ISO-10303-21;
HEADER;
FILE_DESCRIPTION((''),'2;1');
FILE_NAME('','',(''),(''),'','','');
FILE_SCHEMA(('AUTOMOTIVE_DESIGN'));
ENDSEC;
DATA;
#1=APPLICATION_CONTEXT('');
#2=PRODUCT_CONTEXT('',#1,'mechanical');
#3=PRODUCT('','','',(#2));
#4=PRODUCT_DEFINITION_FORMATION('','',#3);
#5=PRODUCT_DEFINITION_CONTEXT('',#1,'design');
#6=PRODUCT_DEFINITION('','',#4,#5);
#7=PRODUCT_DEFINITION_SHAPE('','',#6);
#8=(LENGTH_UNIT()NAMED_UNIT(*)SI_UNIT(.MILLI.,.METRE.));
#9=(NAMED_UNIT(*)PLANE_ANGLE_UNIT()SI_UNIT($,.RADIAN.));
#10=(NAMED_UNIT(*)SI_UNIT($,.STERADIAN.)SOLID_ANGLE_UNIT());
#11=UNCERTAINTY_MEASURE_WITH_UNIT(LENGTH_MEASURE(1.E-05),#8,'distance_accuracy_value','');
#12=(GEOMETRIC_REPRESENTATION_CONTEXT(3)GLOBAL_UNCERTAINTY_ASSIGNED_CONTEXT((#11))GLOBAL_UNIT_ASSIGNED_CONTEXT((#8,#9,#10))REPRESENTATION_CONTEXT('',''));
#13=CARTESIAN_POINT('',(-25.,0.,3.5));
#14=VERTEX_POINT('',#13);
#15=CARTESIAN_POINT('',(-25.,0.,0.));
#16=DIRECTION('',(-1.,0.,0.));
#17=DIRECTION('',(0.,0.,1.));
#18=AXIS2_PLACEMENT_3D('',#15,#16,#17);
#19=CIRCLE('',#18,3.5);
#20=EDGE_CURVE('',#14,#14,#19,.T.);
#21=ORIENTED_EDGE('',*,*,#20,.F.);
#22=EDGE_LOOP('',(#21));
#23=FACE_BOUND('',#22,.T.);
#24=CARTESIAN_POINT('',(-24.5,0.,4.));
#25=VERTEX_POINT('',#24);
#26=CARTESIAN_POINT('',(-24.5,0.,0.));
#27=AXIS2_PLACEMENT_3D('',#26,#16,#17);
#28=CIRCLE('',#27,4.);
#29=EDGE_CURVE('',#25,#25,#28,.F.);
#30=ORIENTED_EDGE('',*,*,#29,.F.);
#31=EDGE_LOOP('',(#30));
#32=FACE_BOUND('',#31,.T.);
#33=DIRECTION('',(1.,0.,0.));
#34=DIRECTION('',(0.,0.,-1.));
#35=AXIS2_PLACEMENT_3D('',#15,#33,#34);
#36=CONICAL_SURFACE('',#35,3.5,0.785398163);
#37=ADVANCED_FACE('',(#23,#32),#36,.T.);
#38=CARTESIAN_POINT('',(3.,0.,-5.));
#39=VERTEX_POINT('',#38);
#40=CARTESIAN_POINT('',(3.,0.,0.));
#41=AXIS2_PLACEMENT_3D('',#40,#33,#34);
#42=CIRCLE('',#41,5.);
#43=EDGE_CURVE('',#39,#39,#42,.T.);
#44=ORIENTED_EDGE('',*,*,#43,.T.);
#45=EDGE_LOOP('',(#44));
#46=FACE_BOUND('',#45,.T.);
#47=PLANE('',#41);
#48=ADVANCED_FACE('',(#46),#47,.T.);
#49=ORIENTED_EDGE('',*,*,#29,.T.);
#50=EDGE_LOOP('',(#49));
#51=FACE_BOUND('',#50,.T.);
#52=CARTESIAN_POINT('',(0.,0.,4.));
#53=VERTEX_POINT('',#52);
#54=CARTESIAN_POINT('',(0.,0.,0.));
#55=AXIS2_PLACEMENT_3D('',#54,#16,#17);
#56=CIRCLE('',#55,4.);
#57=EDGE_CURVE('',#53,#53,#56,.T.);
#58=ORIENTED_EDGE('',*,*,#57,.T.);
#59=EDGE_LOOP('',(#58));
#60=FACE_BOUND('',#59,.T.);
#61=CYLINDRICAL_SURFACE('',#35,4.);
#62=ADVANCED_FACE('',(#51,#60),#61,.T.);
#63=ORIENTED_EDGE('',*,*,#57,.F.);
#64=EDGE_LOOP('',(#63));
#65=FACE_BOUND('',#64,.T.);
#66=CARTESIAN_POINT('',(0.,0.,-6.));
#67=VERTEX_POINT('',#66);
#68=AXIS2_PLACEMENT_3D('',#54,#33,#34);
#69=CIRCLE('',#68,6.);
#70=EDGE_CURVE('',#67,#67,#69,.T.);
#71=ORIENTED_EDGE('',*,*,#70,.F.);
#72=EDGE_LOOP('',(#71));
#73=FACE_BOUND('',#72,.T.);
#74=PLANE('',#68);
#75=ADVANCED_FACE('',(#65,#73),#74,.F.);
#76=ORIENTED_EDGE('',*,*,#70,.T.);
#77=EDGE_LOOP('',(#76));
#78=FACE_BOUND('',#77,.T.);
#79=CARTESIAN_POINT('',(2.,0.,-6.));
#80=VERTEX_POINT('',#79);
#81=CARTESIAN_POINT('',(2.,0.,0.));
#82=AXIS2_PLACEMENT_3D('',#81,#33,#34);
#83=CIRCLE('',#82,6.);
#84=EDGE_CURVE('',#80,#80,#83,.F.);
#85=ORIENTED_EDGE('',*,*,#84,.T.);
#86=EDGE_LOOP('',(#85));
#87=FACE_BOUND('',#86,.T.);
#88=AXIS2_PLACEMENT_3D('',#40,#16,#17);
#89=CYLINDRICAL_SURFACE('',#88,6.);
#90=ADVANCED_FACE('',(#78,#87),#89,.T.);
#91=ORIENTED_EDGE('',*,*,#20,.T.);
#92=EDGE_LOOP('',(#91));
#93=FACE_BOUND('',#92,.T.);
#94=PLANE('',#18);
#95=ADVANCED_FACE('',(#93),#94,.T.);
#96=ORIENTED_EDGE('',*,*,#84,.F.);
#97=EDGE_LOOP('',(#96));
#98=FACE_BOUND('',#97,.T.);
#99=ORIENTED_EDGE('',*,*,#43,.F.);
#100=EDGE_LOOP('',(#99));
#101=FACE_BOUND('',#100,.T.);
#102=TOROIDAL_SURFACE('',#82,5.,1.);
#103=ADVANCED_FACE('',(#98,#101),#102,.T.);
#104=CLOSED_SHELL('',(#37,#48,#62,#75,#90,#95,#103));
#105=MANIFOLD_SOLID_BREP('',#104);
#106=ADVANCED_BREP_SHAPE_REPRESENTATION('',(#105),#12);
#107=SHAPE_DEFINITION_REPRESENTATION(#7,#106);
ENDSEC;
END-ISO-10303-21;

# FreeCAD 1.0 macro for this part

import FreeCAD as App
import Part
import Sketcher
from FreeCAD import Vector
Q = App.Units.Quantity


def edges_at(feature, points):
    """Names of the edges that pass closest to the given points."""
    edges = feature.Shape.Edges
    near = lambda p: min(range(len(edges)), key=lambda i: edges[i].distToShape(Part.Vertex(*p))[0])
    return sorted({f"Edge{near(p) + 1}" for p in points})

doc = App.newDocument("Part")
body = doc.addObject("PartDesign::Body", "Body")

# Sketch on YZ plane
sketch1 = doc.addObject("Sketcher::SketchObject", "Sketch")
body.addObject(sketch1)
sketch1.AttachmentSupport = (doc.YZ_Plane, [""])
sketch1.MapMode = "FlatFace"
sketch1.addGeometry(Part.Circle(Vector(0, 0, 0), Vector(0, 0, 1), 6), False)
sketch1.addConstraint([
    Sketcher.Constraint("Coincident", 0, 3, -1, 1),
    Sketcher.Constraint("Diameter", 0, Q("12 mm")),
])
pad1 = doc.addObject("PartDesign::Pad", "Pad")
body.addObject(pad1)
pad1.Profile = sketch1
pad1.Length = 3

# Sketch on YZ plane
sketch2 = doc.addObject("Sketcher::SketchObject", "Sketch001")
body.addObject(sketch2)
sketch2.AttachmentSupport = (doc.YZ_Plane, [""])
sketch2.MapMode = "FlatFace"
sketch2.addGeometry(Part.Circle(Vector(0, 0, 0), Vector(0, 0, 1), 4), False)
sketch2.addConstraint([
    Sketcher.Constraint("Coincident", 0, 3, -1, 1),
    Sketcher.Constraint("Diameter", 0, Q("8 mm")),
])
pad2 = doc.addObject("PartDesign::Pad", "Pad001")
body.addObject(pad2)
pad2.Profile = sketch2
pad2.Length = 25
pad2.Reversed = True
doc.recompute()

fillet = doc.addObject("PartDesign::Fillet", "Fillet")
body.addObject(fillet)
fillet.Base = (pad2, edges_at(pad2, [(3, 0, 6)]))
fillet.Radius = 1
doc.recompute()

chamfer = doc.addObject("PartDesign::Chamfer", "Chamfer")
body.addObject(chamfer)
chamfer.Base = (fillet, edges_at(fillet, [(-25, 0, -4)]))
chamfer.Size = 0.5

doc.recompute()
